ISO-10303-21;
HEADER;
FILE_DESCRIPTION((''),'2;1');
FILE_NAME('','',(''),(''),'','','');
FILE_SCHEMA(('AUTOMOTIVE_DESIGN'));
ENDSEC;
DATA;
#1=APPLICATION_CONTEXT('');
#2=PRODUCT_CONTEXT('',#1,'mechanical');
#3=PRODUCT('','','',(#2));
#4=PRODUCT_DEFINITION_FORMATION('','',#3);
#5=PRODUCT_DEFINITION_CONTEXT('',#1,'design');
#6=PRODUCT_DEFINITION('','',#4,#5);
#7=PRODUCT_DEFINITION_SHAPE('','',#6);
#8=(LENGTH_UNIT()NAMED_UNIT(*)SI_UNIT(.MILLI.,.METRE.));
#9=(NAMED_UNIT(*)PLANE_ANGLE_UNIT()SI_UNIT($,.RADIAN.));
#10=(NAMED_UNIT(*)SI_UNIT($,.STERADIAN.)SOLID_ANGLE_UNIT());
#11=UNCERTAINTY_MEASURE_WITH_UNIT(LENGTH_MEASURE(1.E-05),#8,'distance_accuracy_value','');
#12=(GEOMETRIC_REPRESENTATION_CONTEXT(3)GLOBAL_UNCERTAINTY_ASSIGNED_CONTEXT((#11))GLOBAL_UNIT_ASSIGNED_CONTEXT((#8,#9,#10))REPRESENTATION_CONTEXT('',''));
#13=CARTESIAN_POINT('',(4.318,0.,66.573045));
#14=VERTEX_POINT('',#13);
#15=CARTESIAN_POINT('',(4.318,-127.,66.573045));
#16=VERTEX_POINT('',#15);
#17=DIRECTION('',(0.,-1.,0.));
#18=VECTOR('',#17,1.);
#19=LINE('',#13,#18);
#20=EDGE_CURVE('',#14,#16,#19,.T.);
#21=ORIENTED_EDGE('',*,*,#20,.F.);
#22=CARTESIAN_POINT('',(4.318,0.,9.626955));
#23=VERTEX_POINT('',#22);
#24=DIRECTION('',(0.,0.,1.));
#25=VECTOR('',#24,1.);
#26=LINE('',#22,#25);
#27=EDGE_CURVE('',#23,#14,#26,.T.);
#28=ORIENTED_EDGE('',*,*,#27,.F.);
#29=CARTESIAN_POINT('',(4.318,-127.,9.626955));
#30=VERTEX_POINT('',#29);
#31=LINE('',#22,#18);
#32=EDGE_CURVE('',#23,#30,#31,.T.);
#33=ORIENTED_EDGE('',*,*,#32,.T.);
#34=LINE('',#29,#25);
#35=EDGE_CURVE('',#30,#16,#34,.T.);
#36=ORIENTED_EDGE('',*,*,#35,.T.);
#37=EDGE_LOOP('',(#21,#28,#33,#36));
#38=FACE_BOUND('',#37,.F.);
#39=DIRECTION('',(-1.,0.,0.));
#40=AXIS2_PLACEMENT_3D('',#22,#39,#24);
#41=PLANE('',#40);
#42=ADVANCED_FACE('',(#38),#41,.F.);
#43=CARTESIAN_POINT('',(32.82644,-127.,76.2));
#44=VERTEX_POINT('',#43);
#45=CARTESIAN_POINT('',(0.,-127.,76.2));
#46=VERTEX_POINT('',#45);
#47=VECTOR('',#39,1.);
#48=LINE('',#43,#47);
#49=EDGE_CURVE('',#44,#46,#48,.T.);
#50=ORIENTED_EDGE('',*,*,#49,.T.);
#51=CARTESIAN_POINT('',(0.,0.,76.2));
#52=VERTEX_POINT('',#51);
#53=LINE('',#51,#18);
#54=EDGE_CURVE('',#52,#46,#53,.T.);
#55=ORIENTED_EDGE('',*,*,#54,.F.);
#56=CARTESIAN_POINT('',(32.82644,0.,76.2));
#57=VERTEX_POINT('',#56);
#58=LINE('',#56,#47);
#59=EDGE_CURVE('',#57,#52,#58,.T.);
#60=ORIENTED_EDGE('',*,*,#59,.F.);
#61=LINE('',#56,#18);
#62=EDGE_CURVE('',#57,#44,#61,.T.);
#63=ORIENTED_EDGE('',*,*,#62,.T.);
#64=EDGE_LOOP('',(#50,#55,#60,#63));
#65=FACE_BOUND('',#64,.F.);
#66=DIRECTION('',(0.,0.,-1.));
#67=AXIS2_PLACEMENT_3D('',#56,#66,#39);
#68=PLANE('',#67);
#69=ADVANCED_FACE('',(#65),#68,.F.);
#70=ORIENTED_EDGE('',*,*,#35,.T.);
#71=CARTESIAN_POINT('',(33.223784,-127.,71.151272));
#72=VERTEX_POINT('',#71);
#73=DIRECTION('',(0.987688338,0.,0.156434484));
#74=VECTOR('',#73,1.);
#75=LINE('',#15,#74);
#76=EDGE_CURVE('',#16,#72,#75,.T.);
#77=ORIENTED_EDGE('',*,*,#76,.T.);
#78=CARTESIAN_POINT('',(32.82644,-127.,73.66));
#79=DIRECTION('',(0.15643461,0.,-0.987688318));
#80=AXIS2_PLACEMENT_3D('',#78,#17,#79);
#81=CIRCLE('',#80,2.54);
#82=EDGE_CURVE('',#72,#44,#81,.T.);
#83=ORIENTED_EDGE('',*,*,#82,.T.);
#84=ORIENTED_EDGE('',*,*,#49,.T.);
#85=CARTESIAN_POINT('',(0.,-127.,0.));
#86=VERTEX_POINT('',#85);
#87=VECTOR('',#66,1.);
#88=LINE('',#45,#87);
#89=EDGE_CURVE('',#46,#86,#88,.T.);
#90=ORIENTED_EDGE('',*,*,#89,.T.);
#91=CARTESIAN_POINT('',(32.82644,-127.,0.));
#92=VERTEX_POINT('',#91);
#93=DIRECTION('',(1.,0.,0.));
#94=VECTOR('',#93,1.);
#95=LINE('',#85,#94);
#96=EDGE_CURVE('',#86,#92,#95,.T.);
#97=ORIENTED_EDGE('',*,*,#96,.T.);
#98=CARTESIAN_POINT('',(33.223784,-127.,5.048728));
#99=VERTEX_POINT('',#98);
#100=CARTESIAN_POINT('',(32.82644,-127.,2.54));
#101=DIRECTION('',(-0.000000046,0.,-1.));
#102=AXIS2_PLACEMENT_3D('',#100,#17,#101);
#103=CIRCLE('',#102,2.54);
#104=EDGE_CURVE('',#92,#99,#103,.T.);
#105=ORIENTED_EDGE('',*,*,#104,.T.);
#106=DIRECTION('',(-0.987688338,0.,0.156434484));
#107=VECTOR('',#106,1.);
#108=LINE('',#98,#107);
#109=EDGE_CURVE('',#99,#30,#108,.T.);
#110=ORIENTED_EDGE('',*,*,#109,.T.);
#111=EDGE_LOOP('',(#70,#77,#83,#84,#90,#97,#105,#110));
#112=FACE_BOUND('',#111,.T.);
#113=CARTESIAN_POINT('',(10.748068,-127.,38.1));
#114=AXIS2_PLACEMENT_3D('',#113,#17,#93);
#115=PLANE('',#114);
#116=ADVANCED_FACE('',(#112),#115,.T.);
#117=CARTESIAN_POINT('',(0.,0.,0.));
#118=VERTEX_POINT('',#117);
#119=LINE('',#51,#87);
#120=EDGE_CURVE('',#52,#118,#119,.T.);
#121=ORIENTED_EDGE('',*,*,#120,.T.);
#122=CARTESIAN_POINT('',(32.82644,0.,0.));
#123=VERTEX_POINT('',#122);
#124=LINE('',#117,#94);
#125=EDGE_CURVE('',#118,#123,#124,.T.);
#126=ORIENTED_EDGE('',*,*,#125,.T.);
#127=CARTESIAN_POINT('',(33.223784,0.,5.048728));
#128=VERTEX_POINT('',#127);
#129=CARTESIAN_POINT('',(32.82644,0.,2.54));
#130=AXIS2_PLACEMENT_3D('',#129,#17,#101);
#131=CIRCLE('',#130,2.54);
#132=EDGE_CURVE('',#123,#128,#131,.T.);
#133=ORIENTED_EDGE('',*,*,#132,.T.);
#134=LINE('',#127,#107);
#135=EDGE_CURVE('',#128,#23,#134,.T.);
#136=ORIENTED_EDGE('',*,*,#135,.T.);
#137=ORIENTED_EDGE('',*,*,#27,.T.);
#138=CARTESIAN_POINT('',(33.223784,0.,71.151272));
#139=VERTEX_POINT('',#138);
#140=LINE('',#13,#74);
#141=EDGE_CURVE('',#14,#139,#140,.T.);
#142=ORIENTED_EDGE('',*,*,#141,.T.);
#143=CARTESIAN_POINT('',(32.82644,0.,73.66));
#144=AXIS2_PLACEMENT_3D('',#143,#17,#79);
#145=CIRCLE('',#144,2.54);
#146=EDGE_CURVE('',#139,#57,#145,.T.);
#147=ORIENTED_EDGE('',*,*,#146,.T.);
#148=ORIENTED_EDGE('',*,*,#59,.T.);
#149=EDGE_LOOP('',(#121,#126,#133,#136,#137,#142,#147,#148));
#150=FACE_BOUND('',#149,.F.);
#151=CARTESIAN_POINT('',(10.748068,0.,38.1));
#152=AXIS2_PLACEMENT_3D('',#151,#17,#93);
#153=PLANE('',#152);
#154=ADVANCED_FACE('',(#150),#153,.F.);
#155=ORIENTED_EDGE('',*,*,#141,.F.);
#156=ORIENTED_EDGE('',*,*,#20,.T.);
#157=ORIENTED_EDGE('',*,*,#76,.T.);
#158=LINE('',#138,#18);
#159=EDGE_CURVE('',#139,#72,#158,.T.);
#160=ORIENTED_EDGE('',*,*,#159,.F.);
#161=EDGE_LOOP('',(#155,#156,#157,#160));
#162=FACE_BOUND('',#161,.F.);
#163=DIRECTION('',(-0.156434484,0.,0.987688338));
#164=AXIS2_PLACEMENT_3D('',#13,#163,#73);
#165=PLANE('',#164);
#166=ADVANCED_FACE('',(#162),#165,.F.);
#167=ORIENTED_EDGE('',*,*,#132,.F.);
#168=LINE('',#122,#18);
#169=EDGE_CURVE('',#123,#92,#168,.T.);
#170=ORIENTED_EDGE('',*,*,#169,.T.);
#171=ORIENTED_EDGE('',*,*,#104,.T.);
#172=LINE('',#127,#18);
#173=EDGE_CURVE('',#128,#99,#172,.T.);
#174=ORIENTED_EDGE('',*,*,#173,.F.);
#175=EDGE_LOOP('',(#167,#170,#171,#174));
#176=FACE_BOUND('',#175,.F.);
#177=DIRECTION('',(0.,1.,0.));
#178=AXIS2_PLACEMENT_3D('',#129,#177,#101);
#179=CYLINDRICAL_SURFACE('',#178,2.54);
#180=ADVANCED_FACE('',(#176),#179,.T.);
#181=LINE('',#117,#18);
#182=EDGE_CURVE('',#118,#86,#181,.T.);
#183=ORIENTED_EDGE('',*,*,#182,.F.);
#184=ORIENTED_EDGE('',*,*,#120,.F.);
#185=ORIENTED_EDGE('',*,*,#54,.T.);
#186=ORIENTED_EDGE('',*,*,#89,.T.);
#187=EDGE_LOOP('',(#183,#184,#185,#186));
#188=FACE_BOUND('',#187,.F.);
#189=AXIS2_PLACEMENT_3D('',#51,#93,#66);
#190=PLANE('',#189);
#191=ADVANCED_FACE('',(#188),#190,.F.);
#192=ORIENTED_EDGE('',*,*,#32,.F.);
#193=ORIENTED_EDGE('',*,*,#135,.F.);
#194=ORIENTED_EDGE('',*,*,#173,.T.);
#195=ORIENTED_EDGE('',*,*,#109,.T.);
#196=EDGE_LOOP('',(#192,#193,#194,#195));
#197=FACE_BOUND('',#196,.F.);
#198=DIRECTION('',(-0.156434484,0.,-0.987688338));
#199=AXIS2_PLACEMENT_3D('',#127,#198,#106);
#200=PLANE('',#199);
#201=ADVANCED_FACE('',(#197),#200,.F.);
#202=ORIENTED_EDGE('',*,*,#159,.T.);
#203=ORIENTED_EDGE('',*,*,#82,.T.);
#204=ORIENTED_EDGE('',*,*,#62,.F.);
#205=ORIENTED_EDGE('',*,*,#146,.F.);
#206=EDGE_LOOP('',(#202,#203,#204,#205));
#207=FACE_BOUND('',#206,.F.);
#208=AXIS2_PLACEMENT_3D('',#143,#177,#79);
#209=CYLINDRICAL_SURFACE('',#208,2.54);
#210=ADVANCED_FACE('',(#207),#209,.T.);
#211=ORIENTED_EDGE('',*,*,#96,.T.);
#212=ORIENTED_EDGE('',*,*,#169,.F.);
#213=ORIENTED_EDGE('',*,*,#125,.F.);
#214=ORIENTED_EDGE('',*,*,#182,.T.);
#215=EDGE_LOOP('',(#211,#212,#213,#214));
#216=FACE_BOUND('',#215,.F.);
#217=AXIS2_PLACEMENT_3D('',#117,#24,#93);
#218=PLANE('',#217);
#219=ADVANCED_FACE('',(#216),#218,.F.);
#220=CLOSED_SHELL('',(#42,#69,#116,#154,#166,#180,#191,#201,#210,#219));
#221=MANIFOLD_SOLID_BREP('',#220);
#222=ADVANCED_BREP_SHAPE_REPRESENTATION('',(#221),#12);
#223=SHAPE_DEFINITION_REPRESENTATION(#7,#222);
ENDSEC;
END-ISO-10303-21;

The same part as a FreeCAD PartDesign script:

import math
import FreeCAD as App
import Part
import Sketcher
Q = App.Units.Quantity

doc = App.newDocument("Part")
body = doc.addObject("PartDesign::Body", "Body")

# Sketch on XZ plane
sketch1 = doc.addObject("Sketcher::SketchObject", "Sketch")
body.addObject(sketch1)
sketch1.AttachmentSupport = (doc.XZ_Plane, [""])
sketch1.MapMode = "FlatFace"
sketch1.addGeometry([
    Part.LineSegment(App.Vector(0, 76.2, 0), App.Vector(0, 0, 0)),  # 0
    Part.LineSegment(App.Vector(0, 0, 0), App.Vector(32.8, 0, 0)),  # 1
    Part.ArcOfCircle(Part.Circle(App.Vector(32.8, 2.5, 0), App.Vector(0, 0, 1), 2.5), math.radians(-90), math.radians(81)),  # 2
    Part.LineSegment(App.Vector(33.2, 5, 0), App.Vector(4.3, 9.6, 0)),  # 3
    Part.LineSegment(App.Vector(4.3, 9.6, 0), App.Vector(4.3, 66.6, 0)),  # 4
    Part.LineSegment(App.Vector(4.3, 66.6, 0), App.Vector(33.2, 71.2, 0)),  # 5
    Part.ArcOfCircle(Part.Circle(App.Vector(32.8, 73.7, 0), App.Vector(0, 0, 1), 2.5), math.radians(-81), math.radians(90)),  # 6
    Part.LineSegment(App.Vector(32.8, 76.2, 0), App.Vector(0, 76.2, 0)),  # 7
], False)
sketch1.addConstraint([
    Sketcher.Constraint("Coincident", 0, 2, 1, 1),
    Sketcher.Constraint("Tangent", 1, 2, 2, 1),
    Sketcher.Constraint("Tangent", 2, 2, 3, 1),
    Sketcher.Constraint("Coincident", 3, 2, 4, 1),
    Sketcher.Constraint("Coincident", 4, 2, 5, 1),
    Sketcher.Constraint("Tangent", 5, 2, 6, 1),
    Sketcher.Constraint("Tangent", 6, 2, 7, 1),
    Sketcher.Constraint("Coincident", 7, 2, 0, 1),
    Sketcher.Constraint("Vertical", 0),
    Sketcher.Constraint("Horizontal", 1),
    Sketcher.Constraint("Vertical", 4),
    Sketcher.Constraint("Horizontal", 7),
    Sketcher.Constraint("Coincident", 0, 2, -1, 1),
    Sketcher.Constraint("Equal", 2, 6),
    Sketcher.Constraint("Vertical", 2, 3, 6, 3),
    Sketcher.Constraint("Vertical", 2, 2, 5, 2),
    Sketcher.Constraint("Radius", 2, Q("0.1 in")),
    Sketcher.Constraint("DistanceY", 0, 2, 0, 1, Q("3 in")),
    Sketcher.Constraint("Angle", 3, Q("170.999999 deg")),
    Sketcher.Constraint("DistanceX", -1, 1, 3, 2, Q("0.17 in")),
    Sketcher.Constraint("Distance", 3, 29.266098),
])
pad1 = doc.addObject("PartDesign::Pad", "Pad")
body.addObject(pad1)
pad1.Profile = sketch1
pad1.Length = Q("5 in")

doc.recompute()
